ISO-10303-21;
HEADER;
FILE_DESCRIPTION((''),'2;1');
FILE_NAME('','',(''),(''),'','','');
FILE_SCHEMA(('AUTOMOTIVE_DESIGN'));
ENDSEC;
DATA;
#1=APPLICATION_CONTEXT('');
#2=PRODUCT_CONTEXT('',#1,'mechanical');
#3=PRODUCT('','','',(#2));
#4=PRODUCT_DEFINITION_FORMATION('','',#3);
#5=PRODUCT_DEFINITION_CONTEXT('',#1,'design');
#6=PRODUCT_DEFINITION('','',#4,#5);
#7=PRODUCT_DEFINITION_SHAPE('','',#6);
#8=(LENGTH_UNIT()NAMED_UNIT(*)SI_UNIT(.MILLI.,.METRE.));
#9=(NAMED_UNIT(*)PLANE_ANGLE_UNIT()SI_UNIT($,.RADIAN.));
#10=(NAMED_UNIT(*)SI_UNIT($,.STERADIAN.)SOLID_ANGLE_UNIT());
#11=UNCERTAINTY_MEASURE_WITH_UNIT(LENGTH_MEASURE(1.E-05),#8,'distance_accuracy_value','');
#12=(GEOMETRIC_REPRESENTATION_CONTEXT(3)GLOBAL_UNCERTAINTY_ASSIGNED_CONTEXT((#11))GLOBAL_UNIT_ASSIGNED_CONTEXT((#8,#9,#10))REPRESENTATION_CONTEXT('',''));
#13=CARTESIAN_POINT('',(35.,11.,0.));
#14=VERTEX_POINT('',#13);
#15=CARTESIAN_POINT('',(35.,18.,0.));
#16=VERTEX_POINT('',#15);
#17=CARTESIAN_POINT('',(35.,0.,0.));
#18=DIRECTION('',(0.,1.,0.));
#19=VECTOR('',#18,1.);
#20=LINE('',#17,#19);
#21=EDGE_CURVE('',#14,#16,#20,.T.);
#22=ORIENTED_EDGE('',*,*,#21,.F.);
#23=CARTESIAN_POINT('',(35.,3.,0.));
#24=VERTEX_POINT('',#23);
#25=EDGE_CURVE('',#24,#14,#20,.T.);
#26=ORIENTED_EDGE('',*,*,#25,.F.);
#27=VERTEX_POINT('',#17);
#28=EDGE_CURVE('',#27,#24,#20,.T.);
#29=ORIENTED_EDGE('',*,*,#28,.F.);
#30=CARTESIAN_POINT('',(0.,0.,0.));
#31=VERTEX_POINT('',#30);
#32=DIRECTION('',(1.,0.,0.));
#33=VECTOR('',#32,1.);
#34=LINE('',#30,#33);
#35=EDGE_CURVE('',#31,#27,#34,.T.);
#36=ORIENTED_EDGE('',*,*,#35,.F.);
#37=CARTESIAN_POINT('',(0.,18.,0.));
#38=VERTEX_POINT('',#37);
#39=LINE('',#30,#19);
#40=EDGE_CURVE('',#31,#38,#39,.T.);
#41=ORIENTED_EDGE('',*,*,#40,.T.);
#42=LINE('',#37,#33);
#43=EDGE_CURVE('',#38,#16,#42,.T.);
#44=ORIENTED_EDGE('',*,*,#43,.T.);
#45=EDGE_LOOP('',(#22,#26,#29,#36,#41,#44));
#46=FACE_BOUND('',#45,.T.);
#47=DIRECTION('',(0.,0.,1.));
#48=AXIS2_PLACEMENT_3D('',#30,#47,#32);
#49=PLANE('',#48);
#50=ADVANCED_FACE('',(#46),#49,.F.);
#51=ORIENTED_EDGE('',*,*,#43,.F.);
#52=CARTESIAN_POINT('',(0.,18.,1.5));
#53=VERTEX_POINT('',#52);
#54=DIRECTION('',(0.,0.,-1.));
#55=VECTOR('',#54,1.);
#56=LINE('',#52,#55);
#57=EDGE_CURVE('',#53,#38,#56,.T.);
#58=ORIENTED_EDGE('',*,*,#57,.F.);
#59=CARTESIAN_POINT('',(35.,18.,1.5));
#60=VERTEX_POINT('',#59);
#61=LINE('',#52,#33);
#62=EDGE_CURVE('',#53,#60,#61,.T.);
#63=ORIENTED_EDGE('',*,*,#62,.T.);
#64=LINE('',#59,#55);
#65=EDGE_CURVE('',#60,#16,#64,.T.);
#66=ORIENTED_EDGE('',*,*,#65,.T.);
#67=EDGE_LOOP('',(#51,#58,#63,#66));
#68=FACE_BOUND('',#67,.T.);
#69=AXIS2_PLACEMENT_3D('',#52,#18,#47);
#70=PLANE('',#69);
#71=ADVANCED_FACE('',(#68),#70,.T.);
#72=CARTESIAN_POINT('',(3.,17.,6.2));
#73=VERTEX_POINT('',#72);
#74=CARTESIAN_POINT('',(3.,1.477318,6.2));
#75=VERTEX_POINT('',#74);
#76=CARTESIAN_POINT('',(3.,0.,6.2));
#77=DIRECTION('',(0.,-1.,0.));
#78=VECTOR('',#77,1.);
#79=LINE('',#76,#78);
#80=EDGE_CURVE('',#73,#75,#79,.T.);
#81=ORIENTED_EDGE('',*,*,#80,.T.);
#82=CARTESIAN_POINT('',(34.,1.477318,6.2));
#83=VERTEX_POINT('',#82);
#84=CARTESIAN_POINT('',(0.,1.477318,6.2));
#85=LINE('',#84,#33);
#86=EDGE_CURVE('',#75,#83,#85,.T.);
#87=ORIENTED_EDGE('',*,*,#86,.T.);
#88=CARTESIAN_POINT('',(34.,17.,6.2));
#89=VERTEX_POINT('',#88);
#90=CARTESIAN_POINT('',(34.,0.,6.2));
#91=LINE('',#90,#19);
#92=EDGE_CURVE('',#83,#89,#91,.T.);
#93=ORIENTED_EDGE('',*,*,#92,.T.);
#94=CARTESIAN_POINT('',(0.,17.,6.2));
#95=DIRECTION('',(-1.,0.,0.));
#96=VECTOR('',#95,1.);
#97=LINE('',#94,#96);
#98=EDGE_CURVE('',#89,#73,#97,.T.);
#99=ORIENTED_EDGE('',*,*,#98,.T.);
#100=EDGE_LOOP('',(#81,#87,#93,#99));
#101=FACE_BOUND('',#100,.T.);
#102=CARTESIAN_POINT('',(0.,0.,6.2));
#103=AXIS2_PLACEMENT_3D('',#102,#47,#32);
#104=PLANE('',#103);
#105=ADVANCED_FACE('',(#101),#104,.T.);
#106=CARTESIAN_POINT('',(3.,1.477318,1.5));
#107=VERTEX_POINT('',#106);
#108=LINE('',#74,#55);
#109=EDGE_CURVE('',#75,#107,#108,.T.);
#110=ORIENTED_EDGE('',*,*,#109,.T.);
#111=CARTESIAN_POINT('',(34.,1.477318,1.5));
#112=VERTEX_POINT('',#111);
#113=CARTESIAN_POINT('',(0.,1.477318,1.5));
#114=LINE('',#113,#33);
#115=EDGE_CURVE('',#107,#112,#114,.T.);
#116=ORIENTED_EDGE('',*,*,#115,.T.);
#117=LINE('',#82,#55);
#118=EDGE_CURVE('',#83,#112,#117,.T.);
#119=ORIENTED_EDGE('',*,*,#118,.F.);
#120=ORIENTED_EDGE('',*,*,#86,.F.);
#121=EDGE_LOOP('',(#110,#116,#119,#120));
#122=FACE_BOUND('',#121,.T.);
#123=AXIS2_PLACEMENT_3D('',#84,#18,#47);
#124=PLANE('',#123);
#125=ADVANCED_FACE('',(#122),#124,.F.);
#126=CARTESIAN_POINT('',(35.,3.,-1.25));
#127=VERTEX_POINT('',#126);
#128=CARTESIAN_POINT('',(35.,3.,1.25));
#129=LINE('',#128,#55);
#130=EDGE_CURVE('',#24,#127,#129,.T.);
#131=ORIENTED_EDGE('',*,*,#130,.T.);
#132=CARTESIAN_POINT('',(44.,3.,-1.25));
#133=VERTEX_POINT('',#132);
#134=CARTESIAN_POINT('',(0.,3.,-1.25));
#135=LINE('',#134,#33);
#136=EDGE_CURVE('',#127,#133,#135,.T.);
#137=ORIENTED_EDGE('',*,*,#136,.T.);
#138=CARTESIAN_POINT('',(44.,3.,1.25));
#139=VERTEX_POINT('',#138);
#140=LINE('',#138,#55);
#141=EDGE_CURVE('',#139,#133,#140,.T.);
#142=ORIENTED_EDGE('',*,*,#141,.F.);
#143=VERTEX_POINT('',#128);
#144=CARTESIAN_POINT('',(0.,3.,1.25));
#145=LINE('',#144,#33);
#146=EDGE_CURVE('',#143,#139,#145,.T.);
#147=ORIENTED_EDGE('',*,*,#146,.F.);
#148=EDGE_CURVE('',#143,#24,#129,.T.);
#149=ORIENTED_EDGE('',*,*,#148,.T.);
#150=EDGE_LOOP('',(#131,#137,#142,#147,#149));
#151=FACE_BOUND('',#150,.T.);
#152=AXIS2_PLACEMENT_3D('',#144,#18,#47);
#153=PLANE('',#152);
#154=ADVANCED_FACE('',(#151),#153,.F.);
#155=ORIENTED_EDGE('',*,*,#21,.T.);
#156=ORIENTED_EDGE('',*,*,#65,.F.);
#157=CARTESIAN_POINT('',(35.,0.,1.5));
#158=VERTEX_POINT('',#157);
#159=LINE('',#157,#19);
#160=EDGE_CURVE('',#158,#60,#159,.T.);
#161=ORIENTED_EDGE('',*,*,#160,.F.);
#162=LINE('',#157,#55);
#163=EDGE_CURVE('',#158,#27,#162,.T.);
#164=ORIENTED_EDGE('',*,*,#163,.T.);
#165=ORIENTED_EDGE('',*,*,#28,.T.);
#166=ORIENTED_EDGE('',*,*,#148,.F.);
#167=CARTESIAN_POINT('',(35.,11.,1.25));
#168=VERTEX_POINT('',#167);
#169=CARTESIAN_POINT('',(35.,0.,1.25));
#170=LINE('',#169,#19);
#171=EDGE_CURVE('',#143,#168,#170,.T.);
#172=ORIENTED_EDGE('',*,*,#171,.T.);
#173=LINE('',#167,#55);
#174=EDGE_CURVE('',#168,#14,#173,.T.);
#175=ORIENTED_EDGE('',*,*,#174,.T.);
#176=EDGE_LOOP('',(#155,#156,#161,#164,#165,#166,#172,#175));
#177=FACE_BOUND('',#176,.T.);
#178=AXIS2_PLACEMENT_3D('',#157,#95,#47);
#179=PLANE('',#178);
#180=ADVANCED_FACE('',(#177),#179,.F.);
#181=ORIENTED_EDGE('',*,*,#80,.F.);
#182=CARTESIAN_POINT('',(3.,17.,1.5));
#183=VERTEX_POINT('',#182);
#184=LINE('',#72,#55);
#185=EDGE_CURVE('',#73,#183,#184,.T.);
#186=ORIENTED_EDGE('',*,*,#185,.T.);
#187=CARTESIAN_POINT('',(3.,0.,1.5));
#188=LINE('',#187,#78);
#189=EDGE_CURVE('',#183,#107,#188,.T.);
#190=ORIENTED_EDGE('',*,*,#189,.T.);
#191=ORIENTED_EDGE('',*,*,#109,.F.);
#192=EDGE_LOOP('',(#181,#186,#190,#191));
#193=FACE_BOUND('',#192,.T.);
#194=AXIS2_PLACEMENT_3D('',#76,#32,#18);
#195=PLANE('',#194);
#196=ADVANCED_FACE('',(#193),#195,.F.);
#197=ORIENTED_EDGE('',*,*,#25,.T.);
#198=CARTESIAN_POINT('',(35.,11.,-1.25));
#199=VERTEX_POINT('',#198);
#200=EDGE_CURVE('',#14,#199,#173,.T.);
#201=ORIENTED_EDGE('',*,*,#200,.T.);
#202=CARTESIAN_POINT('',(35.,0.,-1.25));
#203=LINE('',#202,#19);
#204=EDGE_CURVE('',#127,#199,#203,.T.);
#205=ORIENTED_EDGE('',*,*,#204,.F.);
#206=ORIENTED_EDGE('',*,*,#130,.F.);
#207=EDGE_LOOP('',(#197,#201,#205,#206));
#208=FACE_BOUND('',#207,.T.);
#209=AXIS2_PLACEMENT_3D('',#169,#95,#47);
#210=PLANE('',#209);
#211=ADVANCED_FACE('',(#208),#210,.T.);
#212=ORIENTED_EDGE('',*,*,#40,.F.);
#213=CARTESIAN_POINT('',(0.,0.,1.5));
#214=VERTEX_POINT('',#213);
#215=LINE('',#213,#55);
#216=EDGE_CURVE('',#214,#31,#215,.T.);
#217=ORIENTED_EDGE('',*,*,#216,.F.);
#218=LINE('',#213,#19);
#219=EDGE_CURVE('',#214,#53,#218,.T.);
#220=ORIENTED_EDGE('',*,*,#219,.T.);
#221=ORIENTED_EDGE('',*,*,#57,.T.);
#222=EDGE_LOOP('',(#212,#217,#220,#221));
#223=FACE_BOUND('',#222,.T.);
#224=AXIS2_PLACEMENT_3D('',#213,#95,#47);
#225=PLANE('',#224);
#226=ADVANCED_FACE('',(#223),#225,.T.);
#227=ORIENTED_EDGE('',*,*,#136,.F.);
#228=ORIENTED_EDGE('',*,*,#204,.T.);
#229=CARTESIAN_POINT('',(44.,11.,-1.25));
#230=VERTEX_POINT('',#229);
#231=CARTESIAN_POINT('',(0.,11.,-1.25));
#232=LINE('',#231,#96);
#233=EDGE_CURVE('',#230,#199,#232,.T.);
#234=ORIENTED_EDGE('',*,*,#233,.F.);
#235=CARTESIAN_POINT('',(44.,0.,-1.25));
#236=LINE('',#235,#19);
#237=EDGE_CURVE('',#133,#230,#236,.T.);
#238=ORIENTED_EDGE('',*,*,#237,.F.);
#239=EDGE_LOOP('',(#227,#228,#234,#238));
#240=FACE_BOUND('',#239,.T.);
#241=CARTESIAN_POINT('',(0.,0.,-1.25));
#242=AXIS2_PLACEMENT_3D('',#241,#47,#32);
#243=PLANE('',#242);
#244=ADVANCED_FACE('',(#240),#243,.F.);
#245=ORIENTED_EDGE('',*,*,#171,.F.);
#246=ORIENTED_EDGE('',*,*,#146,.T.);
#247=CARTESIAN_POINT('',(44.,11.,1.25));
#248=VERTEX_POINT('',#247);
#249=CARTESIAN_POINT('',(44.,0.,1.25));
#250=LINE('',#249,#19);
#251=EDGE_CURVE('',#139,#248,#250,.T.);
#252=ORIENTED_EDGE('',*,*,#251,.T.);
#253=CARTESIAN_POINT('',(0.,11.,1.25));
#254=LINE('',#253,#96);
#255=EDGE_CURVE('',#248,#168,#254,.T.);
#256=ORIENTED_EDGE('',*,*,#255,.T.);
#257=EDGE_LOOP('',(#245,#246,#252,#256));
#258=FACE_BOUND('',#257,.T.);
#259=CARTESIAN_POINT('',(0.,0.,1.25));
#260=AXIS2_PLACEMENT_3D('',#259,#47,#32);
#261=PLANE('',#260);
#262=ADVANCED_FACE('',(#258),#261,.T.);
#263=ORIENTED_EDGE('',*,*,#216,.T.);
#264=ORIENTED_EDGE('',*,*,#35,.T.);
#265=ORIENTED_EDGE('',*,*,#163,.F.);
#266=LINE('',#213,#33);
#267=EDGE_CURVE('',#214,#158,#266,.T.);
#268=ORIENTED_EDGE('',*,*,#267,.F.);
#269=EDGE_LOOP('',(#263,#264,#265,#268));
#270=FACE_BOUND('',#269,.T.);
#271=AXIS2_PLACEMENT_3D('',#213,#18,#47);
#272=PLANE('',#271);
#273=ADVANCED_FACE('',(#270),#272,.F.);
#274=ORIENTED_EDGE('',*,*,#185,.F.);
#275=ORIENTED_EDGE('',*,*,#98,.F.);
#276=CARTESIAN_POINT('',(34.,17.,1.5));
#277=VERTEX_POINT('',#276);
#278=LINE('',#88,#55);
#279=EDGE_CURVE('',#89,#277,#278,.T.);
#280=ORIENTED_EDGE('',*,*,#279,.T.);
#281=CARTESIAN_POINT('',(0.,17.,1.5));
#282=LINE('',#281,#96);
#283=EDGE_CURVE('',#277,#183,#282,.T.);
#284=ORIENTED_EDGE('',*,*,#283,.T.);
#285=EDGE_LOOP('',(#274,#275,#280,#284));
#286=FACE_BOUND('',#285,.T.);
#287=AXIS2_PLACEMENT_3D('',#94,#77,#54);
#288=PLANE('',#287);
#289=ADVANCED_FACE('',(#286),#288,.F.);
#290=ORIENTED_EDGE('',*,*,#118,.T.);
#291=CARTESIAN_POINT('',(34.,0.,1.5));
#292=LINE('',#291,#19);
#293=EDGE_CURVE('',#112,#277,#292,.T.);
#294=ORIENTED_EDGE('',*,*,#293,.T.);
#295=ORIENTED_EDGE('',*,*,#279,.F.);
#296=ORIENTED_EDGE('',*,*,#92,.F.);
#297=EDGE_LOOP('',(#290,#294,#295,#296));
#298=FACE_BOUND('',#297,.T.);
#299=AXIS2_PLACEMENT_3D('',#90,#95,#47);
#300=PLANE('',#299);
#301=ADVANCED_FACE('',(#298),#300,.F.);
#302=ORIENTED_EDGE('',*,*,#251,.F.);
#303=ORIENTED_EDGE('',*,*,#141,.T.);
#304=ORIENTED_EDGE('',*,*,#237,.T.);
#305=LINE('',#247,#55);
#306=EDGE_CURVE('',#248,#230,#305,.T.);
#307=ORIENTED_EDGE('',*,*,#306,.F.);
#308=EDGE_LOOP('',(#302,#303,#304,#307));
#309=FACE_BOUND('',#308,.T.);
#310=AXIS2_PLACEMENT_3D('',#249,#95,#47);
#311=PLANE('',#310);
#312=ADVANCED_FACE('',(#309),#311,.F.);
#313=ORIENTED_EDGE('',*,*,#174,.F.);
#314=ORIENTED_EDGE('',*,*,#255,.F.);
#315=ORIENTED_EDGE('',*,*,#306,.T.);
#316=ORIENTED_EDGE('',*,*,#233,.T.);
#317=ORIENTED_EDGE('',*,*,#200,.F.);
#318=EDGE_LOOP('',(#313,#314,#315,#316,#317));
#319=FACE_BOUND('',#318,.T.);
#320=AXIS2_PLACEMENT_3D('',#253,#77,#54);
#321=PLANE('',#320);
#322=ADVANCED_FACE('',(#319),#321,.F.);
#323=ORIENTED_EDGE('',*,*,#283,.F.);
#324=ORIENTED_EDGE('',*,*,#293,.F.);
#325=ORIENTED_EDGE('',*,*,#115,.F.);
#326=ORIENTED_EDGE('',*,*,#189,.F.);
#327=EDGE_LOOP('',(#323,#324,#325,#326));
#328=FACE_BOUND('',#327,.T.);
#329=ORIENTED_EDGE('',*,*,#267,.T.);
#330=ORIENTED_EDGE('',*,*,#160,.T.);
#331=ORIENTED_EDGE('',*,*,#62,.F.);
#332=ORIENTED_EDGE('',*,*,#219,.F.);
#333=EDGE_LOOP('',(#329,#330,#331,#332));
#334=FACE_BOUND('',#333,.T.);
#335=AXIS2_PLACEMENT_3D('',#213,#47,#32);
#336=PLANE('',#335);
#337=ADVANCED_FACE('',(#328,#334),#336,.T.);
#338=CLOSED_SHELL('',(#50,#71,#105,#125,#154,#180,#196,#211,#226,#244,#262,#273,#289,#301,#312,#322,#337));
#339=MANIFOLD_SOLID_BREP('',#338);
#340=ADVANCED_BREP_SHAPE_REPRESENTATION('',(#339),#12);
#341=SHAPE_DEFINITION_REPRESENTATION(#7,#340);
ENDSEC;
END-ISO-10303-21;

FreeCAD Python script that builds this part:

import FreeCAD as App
import Part
import Sketcher

doc = App.newDocument("Part")
params = doc.addObject("Spreadsheet::Sheet", "Params")
for row, (alias, value) in enumerate([
    ("sketch1_width", "35 mm"),
    ("sketch1_width2", "31 mm"),
    ("sketch1_height", "18 mm"),
    ("pad1_length", "1.5 mm"),
    ("sketch2_width", "31 mm"),
    ("pad2_length", "6.2 mm"),
    ("sketch3_width", "9 mm"),
    ("sketch3_height", "8 mm"),
    ("pad3_length", "2.5 mm"),
], start=1):
    params.set(f"A{row}", alias)
    params.set(f"B{row}", "=" + value)
    params.setAlias(f"B{row}", alias)

body = doc.addObject("PartDesign::Body", "Body")

sketch1 = body.newObject("Sketcher::SketchObject", "Sketch")
sketch1.AttachmentSupport = (doc.getObject("XY_Plane"), [""])
sketch1.MapMode = "FlatFace"
sketch1.addGeometry(Part.LineSegment(App.Vector(0, 18, 0), App.Vector(0, 0, 0)), False)
sketch1.addGeometry(Part.LineSegment(App.Vector(0, 0, 0), App.Vector(35, 0, 0)), False)
sketch1.addGeometry(Part.LineSegment(App.Vector(35, 0, 0), App.Vector(35, 18, 0)), False)
sketch1.addGeometry(Part.LineSegment(App.Vector(35, 18, 0), App.Vector(0, 18, 0)), False)
sketch1.addGeometry(Part.LineSegment(App.Vector(34, 17, 0), App.Vector(34, 1, 0)), False)
sketch1.addGeometry(Part.LineSegment(App.Vector(34, 1, 0), App.Vector(3, 1, 0)), False)
sketch1.addGeometry(Part.LineSegment(App.Vector(3, 1, 0), App.Vector(3, 17, 0)), False)
sketch1.addGeometry(Part.LineSegment(App.Vector(3, 17, 0), App.Vector(34, 17, 0)), False)
sketch1.addConstraint(Sketcher.Constraint("Coincident", 0, 2, 1, 1))
sketch1.addConstraint(Sketcher.Constraint("Coincident", 1, 2, 2, 1))
sketch1.addConstraint(Sketcher.Constraint("Coincident", 2, 2, 3, 1))
sketch1.addConstraint(Sketcher.Constraint("Coincident", 3, 2, 0, 1))
sketch1.addConstraint(Sketcher.Constraint("Coincident", 4, 2, 5, 1))
sketch1.addConstraint(Sketcher.Constraint("Coincident", 5, 2, 6, 1))
sketch1.addConstraint(Sketcher.Constraint("Coincident", 6, 2, 7, 1))
sketch1.addConstraint(Sketcher.Constraint("Coincident", 7, 2, 4, 1))
sketch1.addConstraint(Sketcher.Constraint("Vertical", 0))
sketch1.addConstraint(Sketcher.Constraint("Horizontal", 1))
sketch1.addConstraint(Sketcher.Constraint("Vertical", 2))
sketch1.addConstraint(Sketcher.Constraint("Horizontal", 3))
sketch1.addConstraint(Sketcher.Constraint("Vertical", 4))
sketch1.addConstraint(Sketcher.Constraint("Horizontal", 5))
sketch1.addConstraint(Sketcher.Constraint("Vertical", 6))
sketch1.addConstraint(Sketcher.Constraint("Horizontal", 7))
sketch1.addConstraint(Sketcher.Constraint("Coincident", 0, 2, -1, 1))
sketch1.addConstraint(Sketcher.Constraint("DistanceX", 1, 1, 1, 2, 35.0))
sketch1.addConstraint(Sketcher.Constraint("DistanceX", 5, 2, 5, 1, 31.0))
sketch1.addConstraint(Sketcher.Constraint("DistanceY", 0, 2, 0, 1, 18.0))
sketch1.addConstraint(Sketcher.Constraint("DistanceX", -1, 1, 4, 2, 34.0))
sketch1.addConstraint(Sketcher.Constraint("DistanceY", -1, 1, 6, 2, 17.0))
sketch1.addConstraint(Sketcher.Constraint("DistanceY", 4, 2, 4, 1, 15.522682))
sketch1.setExpression("Constraints[17]", "Params.sketch1_width")
sketch1.setExpression("Constraints[18]", "Params.sketch1_width2")
sketch1.setExpression("Constraints[19]", "Params.sketch1_height")
pad1 = body.newObject("PartDesign::Pad", "Pad")
pad1.Profile = sketch1
pad1.setExpression("Length", "Params.pad1_length")

sketch2 = body.newObject("Sketcher::SketchObject", "Sketch001")
sketch2.AttachmentSupport = (doc.getObject("XY_Plane"), [""])
sketch2.MapMode = "FlatFace"
sketch2.addGeometry(Part.LineSegment(App.Vector(3, 1, 0), App.Vector(34, 1, 0)), False)
sketch2.addGeometry(Part.LineSegment(App.Vector(34, 1, 0), App.Vector(34, 17, 0)), False)
sketch2.addGeometry(Part.LineSegment(App.Vector(34, 17, 0), App.Vector(3, 17, 0)), False)
sketch2.addGeometry(Part.LineSegment(App.Vector(3, 17, 0), App.Vector(3, 1, 0)), False)
sketch2.addConstraint(Sketcher.Constraint("Coincident", 0, 2, 1, 1))
sketch2.addConstraint(Sketcher.Constraint("Coincident", 1, 2, 2, 1))
sketch2.addConstraint(Sketcher.Constraint("Coincident", 2, 2, 3, 1))
sketch2.addConstraint(Sketcher.Constraint("Coincident", 3, 2, 0, 1))
sketch2.addConstraint(Sketcher.Constraint("Horizontal", 0))
sketch2.addConstraint(Sketcher.Constraint("Vertical", 1))
sketch2.addConstraint(Sketcher.Constraint("Horizontal", 2))
sketch2.addConstraint(Sketcher.Constraint("Vertical", 3))
sketch2.addConstraint(Sketcher.Constraint("DistanceX", 0, 1, 0, 2, 31.0))
sketch2.addConstraint(Sketcher.Constraint("DistanceX", -1, 1, 0, 2, 34.0))
sketch2.addConstraint(Sketcher.Constraint("DistanceY", -1, 1, 1, 2, 17.0))
sketch2.addConstraint(Sketcher.Constraint("DistanceY", 1, 1, 1, 2, 15.522682))
sketch2.setExpression("Constraints[8]", "Params.sketch2_width")
pad2 = body.newObject("PartDesign::Pad", "Pad001")
pad2.Profile = sketch2
pad2.setExpression("Length", "Params.pad2_length")

sketch3 = body.newObject("Sketcher::SketchObject", "Sketch002")
sketch3.AttachmentSupport = (doc.getObject("XY_Plane"), [""])
sketch3.MapMode = "FlatFace"
sketch3.addGeometry(Part.LineSegment(App.Vector(35, 11, 0), App.Vector(35, 3, 0)), False)
sketch3.addGeometry(Part.LineSegment(App.Vector(35, 3, 0), App.Vector(44, 3, 0)), False)
sketch3.addGeometry(Part.LineSegment(App.Vector(44, 3, 0), App.Vector(44, 11, 0)), False)
sketch3.addGeometry(Part.LineSegment(App.Vector(44, 11, 0), App.Vector(35, 11, 0)), False)
sketch3.addConstraint(Sketcher.Constraint("Coincident", 0, 2, 1, 1))
sketch3.addConstraint(Sketcher.Constraint("Coincident", 1, 2, 2, 1))
sketch3.addConstraint(Sketcher.Constraint("Coincident", 2, 2, 3, 1))
sketch3.addConstraint(Sketcher.Constraint("Coincident", 3, 2, 0, 1))
sketch3.addConstraint(Sketcher.Constraint("Vertical", 0))
sketch3.addConstraint(Sketcher.Constraint("Horizontal", 1))
sketch3.addConstraint(Sketcher.Constraint("Vertical", 2))
sketch3.addConstraint(Sketcher.Constraint("Horizontal", 3))
sketch3.addConstraint(Sketcher.Constraint("DistanceX", 1, 1, 1, 2, 9.0))
sketch3.addConstraint(Sketcher.Constraint("DistanceY", 0, 2, 0, 1, 8.0))
sketch3.addConstraint(Sketcher.Constraint("DistanceX", -1, 1, 0, 2, 35.0))
sketch3.addConstraint(Sketcher.Constraint("DistanceY", -1, 1, 0, 2, 3.0))
sketch3.setExpression("Constraints[8]", "Params.sketch3_width")
sketch3.setExpression("Constraints[9]", "Params.sketch3_height")
pad3 = body.newObject("PartDesign::Pad", "Pad002")
pad3.Profile = sketch3
pad3.setExpression("Length", "Params.pad3_length")
pad3.Midplane = True

doc.recompute()
